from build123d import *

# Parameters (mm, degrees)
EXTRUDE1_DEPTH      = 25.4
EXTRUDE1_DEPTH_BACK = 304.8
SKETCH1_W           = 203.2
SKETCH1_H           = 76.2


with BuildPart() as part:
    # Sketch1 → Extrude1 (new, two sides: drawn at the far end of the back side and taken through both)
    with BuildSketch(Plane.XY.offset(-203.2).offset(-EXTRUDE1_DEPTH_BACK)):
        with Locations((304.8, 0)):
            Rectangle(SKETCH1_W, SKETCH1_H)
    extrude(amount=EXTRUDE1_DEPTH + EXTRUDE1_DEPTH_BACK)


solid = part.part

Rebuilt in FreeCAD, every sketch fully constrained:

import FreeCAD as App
import Part
import Sketcher
Q = App.Units.Quantity


def add_polygon(sketch, points):
    """Adds a closed chain of lines whose ends are joined by coincident constraints."""
    first, n = sketch.GeometryCount, len(points)
    for a, b in zip(points, points[1:] + points[:1]):
        sketch.addGeometry(Part.LineSegment(App.Vector(*a, 0), App.Vector(*b, 0)), False)
    for i in range(n):
        sketch.addConstraint(Sketcher.Constraint("Coincident", first + i, 2, first + (i + 1) % n, 1))

doc = App.newDocument("Part")
body = doc.addObject("PartDesign::Body", "Body")

# Sketch on XY plane
sketch1 = doc.addObject("Sketcher::SketchObject", "Sketch")
body.addObject(sketch1)
sketch1.AttachmentSupport = (doc.XY_Plane, [""])
sketch1.MapMode = "FlatFace"
sketch1.AttachmentOffset = App.Placement(App.Vector(0, 0, -8 * 25.4), App.Rotation())
add_polygon(sketch1, [(203.2, 38.1), (203.2, -38.1), (406.4, -38.1), (406.4, 38.1)])  # lines 0-3
sketch1.addConstraint(Sketcher.Constraint("Vertical", 0))
sketch1.addConstraint(Sketcher.Constraint("Horizontal", 1))
sketch1.addConstraint(Sketcher.Constraint("Vertical", 2))
sketch1.addConstraint(Sketcher.Constraint("Horizontal", 3))
sketch1.addConstraint(Sketcher.Constraint("DistanceX", 1, 1, 1, 2, Q("8 in")))
sketch1.addConstraint(Sketcher.Constraint("DistanceY", 0, 2, 0, 1, Q("3 in")))
sketch1.addConstraint(Sketcher.Constraint("DistanceX", -1, 1, 0, 2, Q("8 in")))
sketch1.addConstraint(Sketcher.Constraint("DistanceY", 0, 2, -1, 1, Q("1.5 in")))
pad1 = doc.addObject("PartDesign::Pad", "Pad")
body.addObject(pad1)
pad1.Profile = sketch1
pad1.Type = "TwoLengths"
pad1.Length = Q("1 in")
pad1.Length2 = Q("12 in")

doc.recompute()
